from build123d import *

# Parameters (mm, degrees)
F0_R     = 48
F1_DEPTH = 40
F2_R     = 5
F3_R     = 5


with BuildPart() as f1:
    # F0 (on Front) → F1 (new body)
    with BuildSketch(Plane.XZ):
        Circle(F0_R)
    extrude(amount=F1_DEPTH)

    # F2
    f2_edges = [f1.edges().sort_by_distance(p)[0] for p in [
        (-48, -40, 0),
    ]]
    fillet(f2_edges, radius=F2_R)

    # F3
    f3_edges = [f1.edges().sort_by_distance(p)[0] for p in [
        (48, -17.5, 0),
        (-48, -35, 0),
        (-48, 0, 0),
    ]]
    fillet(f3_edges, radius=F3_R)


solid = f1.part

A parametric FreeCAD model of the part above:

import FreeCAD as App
import Part
import Sketcher
from FreeCAD import Vector
Q = App.Units.Quantity


def edges_at(feature, points):
    """Names of the edges that pass closest to the given points."""
    edges = feature.Shape.Edges
    near = lambda p: min(range(len(edges)), key=lambda i: edges[i].distToShape(Part.Vertex(*p))[0])
    return sorted({f"Edge{near(p) + 1}" for p in points})

doc = App.newDocument("Part")
body = doc.addObject("PartDesign::Body", "Body")

# Sketch on XZ plane
sketch1 = body.newObject("Sketcher::SketchObject", "Sketch")
sketch1.AttachmentSupport = (doc.getObject("XZ_Plane"), [""])
sketch1.MapMode = "FlatFace"
sketch1.addGeometry(Part.Circle(Vector(0, 0, 0), Vector(0, 0, 1), 48), False)
sketch1.addConstraint([
    Sketcher.Constraint("Coincident", 0, 3, -1, 1),
    Sketcher.Constraint("Diameter", 0, Q("96 mm")),
])
pad1 = body.newObject("PartDesign::Pad", "Pad")
pad1.Profile = sketch1
pad1.Length = 40
doc.recompute()

fillet = body.newObject("PartDesign::Fillet", "Fillet")
fillet.Base = (pad1, edges_at(pad1, [(-48, -40, 0)]))
fillet.Radius = 5
doc.recompute()

fillet2 = body.newObject("PartDesign::Fillet", "Fillet001")
fillet2.Base = (fillet, edges_at(fillet, [(48, -17.5, 0), (-48, -35, 0), (-48, 0, 0)]))
fillet2.Radius = 5

doc.recompute()
